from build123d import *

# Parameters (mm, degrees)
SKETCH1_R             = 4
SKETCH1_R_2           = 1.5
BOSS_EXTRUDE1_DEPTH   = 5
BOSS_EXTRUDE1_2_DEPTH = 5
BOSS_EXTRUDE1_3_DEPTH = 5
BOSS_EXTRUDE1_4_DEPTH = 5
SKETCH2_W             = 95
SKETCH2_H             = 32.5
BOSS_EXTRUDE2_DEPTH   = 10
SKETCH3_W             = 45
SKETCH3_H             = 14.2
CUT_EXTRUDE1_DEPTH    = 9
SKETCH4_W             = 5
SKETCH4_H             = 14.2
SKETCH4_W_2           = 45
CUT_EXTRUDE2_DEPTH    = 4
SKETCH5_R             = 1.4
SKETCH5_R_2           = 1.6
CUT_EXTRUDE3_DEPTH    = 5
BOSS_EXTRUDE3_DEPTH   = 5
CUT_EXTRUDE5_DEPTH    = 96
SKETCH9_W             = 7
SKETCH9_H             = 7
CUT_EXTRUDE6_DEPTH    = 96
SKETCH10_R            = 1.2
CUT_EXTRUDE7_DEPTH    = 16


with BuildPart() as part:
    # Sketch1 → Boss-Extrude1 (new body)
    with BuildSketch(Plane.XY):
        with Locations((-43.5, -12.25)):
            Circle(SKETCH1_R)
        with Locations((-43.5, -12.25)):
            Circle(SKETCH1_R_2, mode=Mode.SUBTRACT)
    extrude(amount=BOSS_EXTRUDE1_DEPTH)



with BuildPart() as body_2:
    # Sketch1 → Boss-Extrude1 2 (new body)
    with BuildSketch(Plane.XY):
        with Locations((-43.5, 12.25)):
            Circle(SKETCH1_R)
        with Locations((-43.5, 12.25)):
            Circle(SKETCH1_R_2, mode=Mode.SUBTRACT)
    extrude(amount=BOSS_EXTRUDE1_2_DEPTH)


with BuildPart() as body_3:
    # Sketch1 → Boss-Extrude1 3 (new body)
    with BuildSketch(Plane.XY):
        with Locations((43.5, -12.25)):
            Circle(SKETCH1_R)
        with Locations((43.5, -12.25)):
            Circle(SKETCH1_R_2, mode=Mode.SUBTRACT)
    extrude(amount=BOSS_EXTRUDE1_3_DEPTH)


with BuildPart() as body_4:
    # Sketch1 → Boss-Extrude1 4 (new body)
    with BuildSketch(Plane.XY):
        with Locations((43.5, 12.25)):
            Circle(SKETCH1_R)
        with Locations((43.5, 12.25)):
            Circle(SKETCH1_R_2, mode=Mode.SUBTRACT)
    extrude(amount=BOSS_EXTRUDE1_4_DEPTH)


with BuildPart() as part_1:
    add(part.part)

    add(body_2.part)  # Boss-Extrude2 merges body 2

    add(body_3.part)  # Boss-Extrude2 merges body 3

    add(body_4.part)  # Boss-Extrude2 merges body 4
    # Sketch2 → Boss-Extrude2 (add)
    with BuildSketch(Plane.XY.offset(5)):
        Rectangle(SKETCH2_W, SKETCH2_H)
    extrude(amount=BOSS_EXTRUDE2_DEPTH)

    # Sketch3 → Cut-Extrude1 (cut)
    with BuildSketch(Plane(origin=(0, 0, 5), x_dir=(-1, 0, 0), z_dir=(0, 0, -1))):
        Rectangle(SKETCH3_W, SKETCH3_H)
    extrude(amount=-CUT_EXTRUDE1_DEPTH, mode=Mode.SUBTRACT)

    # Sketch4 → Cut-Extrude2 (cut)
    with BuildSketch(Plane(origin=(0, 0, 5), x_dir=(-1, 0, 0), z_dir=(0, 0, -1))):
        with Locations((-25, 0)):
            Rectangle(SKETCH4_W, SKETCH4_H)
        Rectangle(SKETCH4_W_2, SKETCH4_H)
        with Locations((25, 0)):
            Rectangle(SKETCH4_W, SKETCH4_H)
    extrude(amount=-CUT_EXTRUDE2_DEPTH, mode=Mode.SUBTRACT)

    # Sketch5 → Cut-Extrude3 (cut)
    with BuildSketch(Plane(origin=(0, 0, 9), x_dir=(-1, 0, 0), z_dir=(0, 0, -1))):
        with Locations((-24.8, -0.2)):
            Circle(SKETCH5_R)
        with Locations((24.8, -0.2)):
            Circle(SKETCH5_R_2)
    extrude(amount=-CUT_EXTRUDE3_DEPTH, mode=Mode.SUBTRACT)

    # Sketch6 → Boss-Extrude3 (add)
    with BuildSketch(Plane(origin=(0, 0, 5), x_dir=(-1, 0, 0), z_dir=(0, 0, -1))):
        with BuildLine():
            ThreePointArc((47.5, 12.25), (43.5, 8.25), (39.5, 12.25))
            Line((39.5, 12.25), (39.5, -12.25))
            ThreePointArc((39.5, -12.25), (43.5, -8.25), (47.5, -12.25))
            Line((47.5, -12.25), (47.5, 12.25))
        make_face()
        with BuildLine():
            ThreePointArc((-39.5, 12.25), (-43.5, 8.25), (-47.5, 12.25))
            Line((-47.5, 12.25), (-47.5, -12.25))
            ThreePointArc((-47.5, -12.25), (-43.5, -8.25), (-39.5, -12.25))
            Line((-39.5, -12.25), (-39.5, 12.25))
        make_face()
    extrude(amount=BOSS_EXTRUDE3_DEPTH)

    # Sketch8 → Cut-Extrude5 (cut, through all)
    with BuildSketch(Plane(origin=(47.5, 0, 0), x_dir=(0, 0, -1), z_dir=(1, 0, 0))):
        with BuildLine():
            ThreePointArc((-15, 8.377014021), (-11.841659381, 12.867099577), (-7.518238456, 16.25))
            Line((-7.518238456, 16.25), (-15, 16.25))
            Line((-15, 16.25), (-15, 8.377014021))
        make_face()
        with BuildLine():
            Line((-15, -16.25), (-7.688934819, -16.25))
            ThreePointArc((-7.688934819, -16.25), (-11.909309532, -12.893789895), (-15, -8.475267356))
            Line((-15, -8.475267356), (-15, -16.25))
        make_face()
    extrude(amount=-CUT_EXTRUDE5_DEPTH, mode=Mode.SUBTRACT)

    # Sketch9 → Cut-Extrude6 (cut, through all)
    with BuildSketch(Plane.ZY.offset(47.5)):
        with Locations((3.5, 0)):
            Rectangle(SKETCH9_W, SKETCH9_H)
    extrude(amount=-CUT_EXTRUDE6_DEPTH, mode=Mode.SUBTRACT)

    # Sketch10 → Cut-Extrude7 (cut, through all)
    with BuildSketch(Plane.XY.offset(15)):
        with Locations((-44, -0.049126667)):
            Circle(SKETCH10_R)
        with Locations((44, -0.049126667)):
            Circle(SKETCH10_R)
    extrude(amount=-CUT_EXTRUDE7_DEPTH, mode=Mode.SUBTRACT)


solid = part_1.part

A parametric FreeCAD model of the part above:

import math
import FreeCAD as App
import Part
import Sketcher
from FreeCAD import Vector
Q = App.Units.Quantity

doc = App.newDocument("Part")
body = doc.addObject("PartDesign::Body", "Body")

# Sketch on XY plane
sketch1 = doc.addObject("Sketcher::SketchObject", "Sketch")
body.addObject(sketch1)
sketch1.AttachmentSupport = (doc.XY_Plane, [""])
sketch1.MapMode = "FlatFace"
sketch1.addGeometry([
    Part.Circle(Vector(-43.5, -12.2, 0), Vector(0, 0, 1), 4),
    Part.Circle(Vector(-43.5, -12.2, 0), Vector(0, 0, 1), 1.5),
], False)
sketch1.addConstraint([
    Sketcher.Constraint("Coincident", 1, 3, 0, 3),
    Sketcher.Constraint("Diameter", 0, Q("8 mm")),
    Sketcher.Constraint("Diameter", 1, Q("3 mm")),
    Sketcher.Constraint("DistanceX", 0, 3, -1, 1, Q("43.5 mm")),
    Sketcher.Constraint("DistanceY", 0, 3, -1, 1, Q("12.25 mm")),
])
pad1 = doc.addObject("PartDesign::Pad", "Pad")
body.addObject(pad1)
pad1.Profile = sketch1
pad1.Length = 5
body2 = doc.addObject("PartDesign::Body", "Body001")

# Sketch on XY plane
sketch2 = doc.addObject("Sketcher::SketchObject", "Sketch001")
body2.addObject(sketch2)
sketch2.AttachmentSupport = (doc.getObject("XY_Plane001"), [""])
sketch2.MapMode = "FlatFace"
sketch2.addGeometry([
    Part.Circle(Vector(-43.5, 12.2, 0), Vector(0, 0, 1), 4),
    Part.Circle(Vector(-43.5, 12.2, 0), Vector(0, 0, 1), 1.5),
], False)
sketch2.addConstraint([
    Sketcher.Constraint("Coincident", 1, 3, 0, 3),
    Sketcher.Constraint("Diameter", 0, Q("8 mm")),
    Sketcher.Constraint("Diameter", 1, Q("3 mm")),
    Sketcher.Constraint("DistanceX", 0, 3, -1, 1, Q("43.5 mm")),
    Sketcher.Constraint("DistanceY", -1, 1, 0, 3, Q("12.25 mm")),
])
pad2 = doc.addObject("PartDesign::Pad", "Pad001")
body2.addObject(pad2)
pad2.Profile = sketch2
pad2.Length = 5
body3 = doc.addObject("PartDesign::Body", "Body002")

# Sketch on XY plane
sketch3 = doc.addObject("Sketcher::SketchObject", "Sketch002")
body3.addObject(sketch3)
sketch3.AttachmentSupport = (doc.getObject("XY_Plane002"), [""])
sketch3.MapMode = "FlatFace"
sketch3.addGeometry([
    Part.Circle(Vector(43.5, -12.2, 0), Vector(0, 0, 1), 4),
    Part.Circle(Vector(43.5, -12.2, 0), Vector(0, 0, 1), 1.5),
], False)
sketch3.addConstraint([
    Sketcher.Constraint("Coincident", 1, 3, 0, 3),
    Sketcher.Constraint("Diameter", 0, Q("8 mm")),
    Sketcher.Constraint("Diameter", 1, Q("3 mm")),
    Sketcher.Constraint("DistanceX", -1, 1, 0, 3, Q("43.5 mm")),
    Sketcher.Constraint("DistanceY", 0, 3, -1, 1, Q("12.25 mm")),
])
pad3 = doc.addObject("PartDesign::Pad", "Pad002")
body3.addObject(pad3)
pad3.Profile = sketch3
pad3.Length = 5
body4 = doc.addObject("PartDesign::Body", "Body003")

# Sketch on XY plane
sketch4 = doc.addObject("Sketcher::SketchObject", "Sketch003")
body4.addObject(sketch4)
sketch4.AttachmentSupport = (doc.getObject("XY_Plane003"), [""])
sketch4.MapMode = "FlatFace"
sketch4.addGeometry([
    Part.Circle(Vector(43.5, 12.2, 0), Vector(0, 0, 1), 4),
    Part.Circle(Vector(43.5, 12.2, 0), Vector(0, 0, 1), 1.5),
], False)
sketch4.addConstraint([
    Sketcher.Constraint("Coincident", 1, 3, 0, 3),
    Sketcher.Constraint("Diameter", 0, Q("8 mm")),
    Sketcher.Constraint("Diameter", 1, Q("3 mm")),
    Sketcher.Constraint("DistanceX", -1, 1, 0, 3, Q("43.5 mm")),
    Sketcher.Constraint("DistanceY", -1, 1, 0, 3, Q("12.25 mm")),
])
pad4 = doc.addObject("PartDesign::Pad", "Pad003")
body4.addObject(pad4)
pad4.Profile = sketch4
pad4.Length = 5
body.AllowCompound = True
doc.recompute()

boolean = doc.addObject("PartDesign::Boolean", "Boolean")
body.addObject(boolean)
boolean.Type = "Fuse"
boolean.addObjects([body2])
doc.recompute()

boolean2 = doc.addObject("PartDesign::Boolean", "Boolean001")
body.addObject(boolean2)
boolean2.Type = "Fuse"
boolean2.addObjects([body3])
doc.recompute()

boolean3 = doc.addObject("PartDesign::Boolean", "Boolean002")
body.addObject(boolean3)
boolean3.Type = "Fuse"
boolean3.addObjects([body4])

# Sketch on XY plane
sketch5 = doc.addObject("Sketcher::SketchObject", "Sketch004")
body.addObject(sketch5)
sketch5.AttachmentSupport = (doc.XY_Plane, [""])
sketch5.MapMode = "FlatFace"
sketch5.AttachmentOffset = App.Placement(Vector(0, 0, 5), App.Rotation())
sketch5.addGeometry([
    Part.LineSegment(Vector(-48, 16, 0), Vector(-48, -16, 0)),
    Part.LineSegment(Vector(-48, -16, 0), Vector(48, -16, 0)),
    Part.LineSegment(Vector(48, -16, 0), Vector(48, 16, 0)),
    Part.LineSegment(Vector(48, 16, 0), Vector(-48, 16, 0)),
], False)
sketch5.addConstraint([
    Sketcher.Constraint("Coincident", 0, 2, 1, 1),
    Sketcher.Constraint("Coincident", 1, 2, 2, 1),
    Sketcher.Constraint("Coincident", 2, 2, 3, 1),
    Sketcher.Constraint("Coincident", 3, 2, 0, 1),
    Sketcher.Constraint("Vertical", 0),
    Sketcher.Constraint("Horizontal", 1),
    Sketcher.Constraint("Vertical", 2),
    Sketcher.Constraint("Horizontal", 3),
    Sketcher.Constraint("Symmetric", 0, 2, 2, 2, -1, 1),
    Sketcher.Constraint("DistanceX", 1, 1, 1, 2, Q("95 mm")),
    Sketcher.Constraint("DistanceY", 0, 2, 0, 1, Q("32.5 mm")),
])
pad5 = doc.addObject("PartDesign::Pad", "Pad004")
body.addObject(pad5)
pad5.Profile = sketch5
pad5.Length = 10

# Sketch on XY plane
sketch6 = doc.addObject("Sketcher::SketchObject", "Sketch005")
body.addObject(sketch6)
sketch6.AttachmentSupport = (doc.XY_Plane, [""])
sketch6.MapMode = "FlatFace"
sketch6.AttachmentOffset = App.Placement(Vector(0, 0, 5), App.Rotation())
sketch6.addGeometry([
    Part.LineSegment(Vector(22, 7, 0), Vector(22, -7, 0)),
    Part.LineSegment(Vector(22, -7, 0), Vector(-22, -7, 0)),
    Part.LineSegment(Vector(-22, -7, 0), Vector(-22, 7, 0)),
    Part.LineSegment(Vector(-22, 7, 0), Vector(22, 7, 0)),
], False)
sketch6.addConstraint([
    Sketcher.Constraint("Coincident", 0, 2, 1, 1),
    Sketcher.Constraint("Coincident", 1, 2, 2, 1),
    Sketcher.Constraint("Coincident", 2, 2, 3, 1),
    Sketcher.Constraint("Coincident", 3, 2, 0, 1),
    Sketcher.Constraint("Vertical", 0),
    Sketcher.Constraint("Horizontal", 1),
    Sketcher.Constraint("Vertical", 2),
    Sketcher.Constraint("Horizontal", 3),
    Sketcher.Constraint("Symmetric", 0, 2, 2, 2, -1, 1),
    Sketcher.Constraint("DistanceX", 1, 2, 1, 1, Q("45 mm")),
    Sketcher.Constraint("DistanceY", 0, 2, 0, 1, Q("14.2 mm")),
])
pocket1 = doc.addObject("PartDesign::Pocket", "Pocket")
body.addObject(pocket1)
pocket1.Profile = sketch6
pocket1.Length = 9
pocket1.Reversed = True

# Sketch on XY plane
sketch7 = doc.addObject("Sketcher::SketchObject", "Sketch006")
body.addObject(sketch7)
sketch7.AttachmentSupport = (doc.XY_Plane, [""])
sketch7.MapMode = "FlatFace"
sketch7.AttachmentOffset = App.Placement(Vector(0, 0, 5), App.Rotation())
sketch7.addGeometry([
    Part.LineSegment(Vector(28, 7, 0), Vector(28, -7, 0)),
    Part.LineSegment(Vector(28, -7, 0), Vector(-28, -7, 0)),
    Part.LineSegment(Vector(-28, -7, 0), Vector(-28, 7, 0)),
    Part.LineSegment(Vector(-28, 7, 0), Vector(28, 7, 0)),
], False)
sketch7.addConstraint([
    Sketcher.Constraint("Coincident", 0, 2, 1, 1),
    Sketcher.Constraint("Coincident", 1, 2, 2, 1),
    Sketcher.Constraint("Coincident", 2, 2, 3, 1),
    Sketcher.Constraint("Coincident", 3, 2, 0, 1),
    Sketcher.Constraint("Vertical", 0),
    Sketcher.Constraint("Horizontal", 1),
    Sketcher.Constraint("Vertical", 2),
    Sketcher.Constraint("Horizontal", 3),
    Sketcher.Constraint("Symmetric", 0, 2, 2, 2, -1, 1),
    Sketcher.Constraint("DistanceX", 1, 2, 1, 1, Q("55 mm")),
    Sketcher.Constraint("DistanceY", 0, 2, 0, 1, Q("14.2 mm")),
])
pocket2 = doc.addObject("PartDesign::Pocket", "Pocket001")
body.addObject(pocket2)
pocket2.Profile = sketch7
pocket2.Length = 4
pocket2.Reversed = True

# Sketch on XY plane
sketch8 = doc.addObject("Sketcher::SketchObject", "Sketch007")
body.addObject(sketch8)
sketch8.AttachmentSupport = (doc.XY_Plane, [""])
sketch8.MapMode = "FlatFace"
sketch8.AttachmentOffset = App.Placement(Vector(0, 0, 9), App.Rotation())
sketch8.addGeometry([
    Part.Circle(Vector(24.8, -0.2, 0), Vector(0, 0, 1), 1.4),
    Part.Circle(Vector(-24.8, -0.2, 0), Vector(0, 0, 1), 1.6),
], False)
sketch8.addConstraint([
    Sketcher.Constraint("Symmetric", 0, 3, 1, 3, -2),
    Sketcher.Constraint("Diameter", 0, Q("2.8 mm")),
    Sketcher.Constraint("Diameter", 1, Q("3.2 mm")),
    Sketcher.Constraint("DistanceX", -1, 1, 0, 3, Q("24.8 mm")),
    Sketcher.Constraint("DistanceY", 0, 3, -1, 1, Q("0.2 mm")),
])
pocket3 = doc.addObject("PartDesign::Pocket", "Pocket002")
body.addObject(pocket3)
pocket3.Profile = sketch8
pocket3.Length = 5
pocket3.Reversed = True

# Sketch on XY plane
sketch9 = doc.addObject("Sketcher::SketchObject", "Sketch008")
body.addObject(sketch9)
sketch9.AttachmentSupport = (doc.XY_Plane, [""])
sketch9.MapMode = "FlatFace"
sketch9.AttachmentOffset = App.Placement(Vector(0, 0, 5), App.Rotation())
sketch9.addGeometry([
    Part.ArcOfCircle(Part.Circle(Vector(-43.5, 12.2, 0), Vector(0, 0, 1), 4), math.radians(180), math.radians(360)),  # 0
    Part.LineSegment(Vector(-39.5, 12.2, 0), Vector(-39.5, -12.2, 0)),  # 1
    Part.ArcOfCircle(Part.Circle(Vector(-43.5, -12.2, 0), Vector(0, 0, 1), 4), math.radians(0), math.radians(180)),  # 2
    Part.LineSegment(Vector(-47.5, -12.2, 0), Vector(-47.5, 12.2, 0)),  # 3
    Part.ArcOfCircle(Part.Circle(Vector(43.5, 12.2, 0), Vector(0, 0, 1), 4), math.radians(180), math.radians(360)),  # 4
    Part.LineSegment(Vector(47.5, 12.2, 0), Vector(47.5, -12.2, 0)),  # 5
    Part.ArcOfCircle(Part.Circle(Vector(43.5, -12.2, 0), Vector(0, 0, 1), 4), math.radians(0), math.radians(180)),  # 6
    Part.LineSegment(Vector(39.5, -12.2, 0), Vector(39.5, 12.2, 0)),  # 7
], False)
sketch9.addConstraint([
    Sketcher.Constraint("Tangent", 0, 2, 1, 1),
    Sketcher.Constraint("Tangent", 1, 2, 2, 1),
    Sketcher.Constraint("Tangent", 2, 2, 3, 1),
    Sketcher.Constraint("Tangent", 3, 2, 0, 1),
    Sketcher.Constraint("Tangent", 4, 2, 5, 1),
    Sketcher.Constraint("Tangent", 5, 2, 6, 1),
    Sketcher.Constraint("Tangent", 6, 2, 7, 1),
    Sketcher.Constraint("Tangent", 7, 2, 4, 1),
    Sketcher.Constraint("Vertical", 1),
    Sketcher.Constraint("Vertical", 3),
    Sketcher.Constraint("Vertical", 5),
    Sketcher.Constraint("Vertical", 7),
    Sketcher.Constraint("Equal", 2, 4),
    Sketcher.Constraint("Symmetric", 2, 3, 4, 3, -1, 1),
    Sketcher.Constraint("Horizontal", 0, 3, 4, 3),
    Sketcher.Constraint("Horizontal", 2, 3, 6, 3),
    Sketcher.Constraint("Radius", 0, Q("4 mm")),
    Sketcher.Constraint("DistanceY", 1, 2, 1, 1, Q("24.5 mm")),
    Sketcher.Constraint("DistanceX", 0, 3, 4, 3, Q("87 mm")),
])
pad6 = doc.addObject("PartDesign::Pad", "Pad005")
body.addObject(pad6)
pad6.Profile = sketch9
pad6.Length = 5
pad6.Reversed = True

# Sketch on YZ plane
sketch10 = doc.addObject("Sketcher::SketchObject", "Sketch009")
body.addObject(sketch10)
sketch10.AttachmentSupport = (doc.YZ_Plane, [""])
sketch10.MapMode = "FlatFace"
sketch10.AttachmentOffset = App.Placement(Vector(0, 0, 47.5), App.Rotation())
sketch10.addGeometry([
    Part.ArcOfCircle(Part.Circle(Vector(0, -2, 0), Vector(0, 0, 1), 19), math.radians(30), math.radians(63)),  # 0
    Part.LineSegment(Vector(16, 8, 0), Vector(16, 15, 0)),  # 1
    Part.LineSegment(Vector(16, 15, 0), Vector(8, 15, 0)),  # 2
    Part.LineSegment(Vector(-16, 15, 0), Vector(-16, 8, 0)),  # 3
    Part.ArcOfCircle(Part.Circle(Vector(0, -2, 0), Vector(0, 0, 1), 19), math.radians(117), math.radians(150)),  # 4
    Part.LineSegment(Vector(-8, 15, 0), Vector(-16, 15, 0)),  # 5
], False)
sketch10.addConstraint([
    Sketcher.Constraint("Coincident", 0, 1, 1, 1),
    Sketcher.Constraint("Coincident", 1, 2, 2, 1),
    Sketcher.Constraint("Coincident", 2, 2, 0, 2),
    Sketcher.Constraint("Coincident", 3, 2, 4, 2),
    Sketcher.Constraint("Coincident", 4, 1, 5, 1),
    Sketcher.Constraint("Coincident", 5, 2, 3, 1),
    Sketcher.Constraint("Vertical", 1),
    Sketcher.Constraint("Horizontal", 2),
    Sketcher.Constraint("Vertical", 3),
    Sketcher.Constraint("Horizontal", 5),
    Sketcher.Constraint("Coincident", 4, 3, 0, 3),
    Sketcher.Constraint("Equal", 0, 4),
    Sketcher.Constraint("Symmetric", 1, 2, 5, 2, -2),
    Sketcher.Constraint("DistanceY", -1, 1, 1, 2, Q("15 mm")),
    Sketcher.Constraint("DistanceX", 3, 2, 0, 1, Q("32.5 mm")),
    Sketcher.Constraint("Radius", 0, Q("18.749962 mm")),
    Sketcher.Constraint("DistanceY", 1, 1, 1, 2, Q("7.481762 mm")),
    Sketcher.Constraint("DistanceY", 4, 3, 0, 1, Q("9.2682 mm")),
])
pocket4 = doc.addObject("PartDesign::Pocket", "Pocket003")
body.addObject(pocket4)
pocket4.Profile = sketch10
pocket4.Type = "ThroughAll"

# Sketch on YZ plane
sketch11 = doc.addObject("Sketcher::SketchObject", "Sketch010")
body.addObject(sketch11)
sketch11.AttachmentSupport = (doc.YZ_Plane, [""])
sketch11.MapMode = "FlatFace"
sketch11.AttachmentOffset = App.Placement(Vector(0, 0, -47.5), App.Rotation())
sketch11.addGeometry([
    Part.LineSegment(Vector(4, 0, 0), Vector(-4, 0, 0)),
    Part.LineSegment(Vector(-4, 0, 0), Vector(-4, 7, 0)),
    Part.LineSegment(Vector(-4, 7, 0), Vector(4, 7, 0)),
    Part.LineSegment(Vector(4, 7, 0), Vector(4, 0, 0)),
], False)
sketch11.addConstraint([
    Sketcher.Constraint("Coincident", 0, 2, 1, 1),
    Sketcher.Constraint("Coincident", 1, 2, 2, 1),
    Sketcher.Constraint("Coincident", 2, 2, 3, 1),
    Sketcher.Constraint("Coincident", 3, 2, 0, 1),
    Sketcher.Constraint("Horizontal", 0),
    Sketcher.Constraint("Vertical", 1),
    Sketcher.Constraint("Horizontal", 2),
    Sketcher.Constraint("Vertical", 3),
    Sketcher.Constraint("Symmetric", 0, 2, 3, 2, -1, 1),
    Sketcher.Constraint("Equal", 2, 1),
    Sketcher.Constraint("DistanceX", 0, 2, 0, 1, Q("7 mm")),
])
pocket5 = doc.addObject("PartDesign::Pocket", "Pocket004")
body.addObject(pocket5)
pocket5.Profile = sketch11
pocket5.Type = "ThroughAll"
pocket5.Reversed = True

# Sketch on XY plane
sketch12 = doc.addObject("Sketcher::SketchObject", "Sketch011")
body.addObject(sketch12)
sketch12.AttachmentSupport = (doc.XY_Plane, [""])
sketch12.MapMode = "FlatFace"
sketch12.AttachmentOffset = App.Placement(Vector(0, 0, 15), App.Rotation())
sketch12.addGeometry([
    Part.Circle(Vector(-44, 0, 0), Vector(0, 0, 1), 1.2),
    Part.Circle(Vector(44, 0, 0), Vector(0, 0, 1), 1.2),
], False)
sketch12.addConstraint([
    Sketcher.Constraint("Equal", 0, 1),
    Sketcher.Constraint("Symmetric", 0, 3, 1, 3, -2),
    Sketcher.Constraint("Diameter", 0, Q("2.4 mm")),
    Sketcher.Constraint("DistanceX", 0, 3, -1, 1, Q("44 mm")),
    Sketcher.Constraint("DistanceY", 0, 3, -1, 1, Q("0.049127 mm")),
])
pocket6 = doc.addObject("PartDesign::Pocket", "Pocket005")
body.addObject(pocket6)
pocket6.Profile = sketch12
pocket6.Type = "ThroughAll"

doc.recompute()
